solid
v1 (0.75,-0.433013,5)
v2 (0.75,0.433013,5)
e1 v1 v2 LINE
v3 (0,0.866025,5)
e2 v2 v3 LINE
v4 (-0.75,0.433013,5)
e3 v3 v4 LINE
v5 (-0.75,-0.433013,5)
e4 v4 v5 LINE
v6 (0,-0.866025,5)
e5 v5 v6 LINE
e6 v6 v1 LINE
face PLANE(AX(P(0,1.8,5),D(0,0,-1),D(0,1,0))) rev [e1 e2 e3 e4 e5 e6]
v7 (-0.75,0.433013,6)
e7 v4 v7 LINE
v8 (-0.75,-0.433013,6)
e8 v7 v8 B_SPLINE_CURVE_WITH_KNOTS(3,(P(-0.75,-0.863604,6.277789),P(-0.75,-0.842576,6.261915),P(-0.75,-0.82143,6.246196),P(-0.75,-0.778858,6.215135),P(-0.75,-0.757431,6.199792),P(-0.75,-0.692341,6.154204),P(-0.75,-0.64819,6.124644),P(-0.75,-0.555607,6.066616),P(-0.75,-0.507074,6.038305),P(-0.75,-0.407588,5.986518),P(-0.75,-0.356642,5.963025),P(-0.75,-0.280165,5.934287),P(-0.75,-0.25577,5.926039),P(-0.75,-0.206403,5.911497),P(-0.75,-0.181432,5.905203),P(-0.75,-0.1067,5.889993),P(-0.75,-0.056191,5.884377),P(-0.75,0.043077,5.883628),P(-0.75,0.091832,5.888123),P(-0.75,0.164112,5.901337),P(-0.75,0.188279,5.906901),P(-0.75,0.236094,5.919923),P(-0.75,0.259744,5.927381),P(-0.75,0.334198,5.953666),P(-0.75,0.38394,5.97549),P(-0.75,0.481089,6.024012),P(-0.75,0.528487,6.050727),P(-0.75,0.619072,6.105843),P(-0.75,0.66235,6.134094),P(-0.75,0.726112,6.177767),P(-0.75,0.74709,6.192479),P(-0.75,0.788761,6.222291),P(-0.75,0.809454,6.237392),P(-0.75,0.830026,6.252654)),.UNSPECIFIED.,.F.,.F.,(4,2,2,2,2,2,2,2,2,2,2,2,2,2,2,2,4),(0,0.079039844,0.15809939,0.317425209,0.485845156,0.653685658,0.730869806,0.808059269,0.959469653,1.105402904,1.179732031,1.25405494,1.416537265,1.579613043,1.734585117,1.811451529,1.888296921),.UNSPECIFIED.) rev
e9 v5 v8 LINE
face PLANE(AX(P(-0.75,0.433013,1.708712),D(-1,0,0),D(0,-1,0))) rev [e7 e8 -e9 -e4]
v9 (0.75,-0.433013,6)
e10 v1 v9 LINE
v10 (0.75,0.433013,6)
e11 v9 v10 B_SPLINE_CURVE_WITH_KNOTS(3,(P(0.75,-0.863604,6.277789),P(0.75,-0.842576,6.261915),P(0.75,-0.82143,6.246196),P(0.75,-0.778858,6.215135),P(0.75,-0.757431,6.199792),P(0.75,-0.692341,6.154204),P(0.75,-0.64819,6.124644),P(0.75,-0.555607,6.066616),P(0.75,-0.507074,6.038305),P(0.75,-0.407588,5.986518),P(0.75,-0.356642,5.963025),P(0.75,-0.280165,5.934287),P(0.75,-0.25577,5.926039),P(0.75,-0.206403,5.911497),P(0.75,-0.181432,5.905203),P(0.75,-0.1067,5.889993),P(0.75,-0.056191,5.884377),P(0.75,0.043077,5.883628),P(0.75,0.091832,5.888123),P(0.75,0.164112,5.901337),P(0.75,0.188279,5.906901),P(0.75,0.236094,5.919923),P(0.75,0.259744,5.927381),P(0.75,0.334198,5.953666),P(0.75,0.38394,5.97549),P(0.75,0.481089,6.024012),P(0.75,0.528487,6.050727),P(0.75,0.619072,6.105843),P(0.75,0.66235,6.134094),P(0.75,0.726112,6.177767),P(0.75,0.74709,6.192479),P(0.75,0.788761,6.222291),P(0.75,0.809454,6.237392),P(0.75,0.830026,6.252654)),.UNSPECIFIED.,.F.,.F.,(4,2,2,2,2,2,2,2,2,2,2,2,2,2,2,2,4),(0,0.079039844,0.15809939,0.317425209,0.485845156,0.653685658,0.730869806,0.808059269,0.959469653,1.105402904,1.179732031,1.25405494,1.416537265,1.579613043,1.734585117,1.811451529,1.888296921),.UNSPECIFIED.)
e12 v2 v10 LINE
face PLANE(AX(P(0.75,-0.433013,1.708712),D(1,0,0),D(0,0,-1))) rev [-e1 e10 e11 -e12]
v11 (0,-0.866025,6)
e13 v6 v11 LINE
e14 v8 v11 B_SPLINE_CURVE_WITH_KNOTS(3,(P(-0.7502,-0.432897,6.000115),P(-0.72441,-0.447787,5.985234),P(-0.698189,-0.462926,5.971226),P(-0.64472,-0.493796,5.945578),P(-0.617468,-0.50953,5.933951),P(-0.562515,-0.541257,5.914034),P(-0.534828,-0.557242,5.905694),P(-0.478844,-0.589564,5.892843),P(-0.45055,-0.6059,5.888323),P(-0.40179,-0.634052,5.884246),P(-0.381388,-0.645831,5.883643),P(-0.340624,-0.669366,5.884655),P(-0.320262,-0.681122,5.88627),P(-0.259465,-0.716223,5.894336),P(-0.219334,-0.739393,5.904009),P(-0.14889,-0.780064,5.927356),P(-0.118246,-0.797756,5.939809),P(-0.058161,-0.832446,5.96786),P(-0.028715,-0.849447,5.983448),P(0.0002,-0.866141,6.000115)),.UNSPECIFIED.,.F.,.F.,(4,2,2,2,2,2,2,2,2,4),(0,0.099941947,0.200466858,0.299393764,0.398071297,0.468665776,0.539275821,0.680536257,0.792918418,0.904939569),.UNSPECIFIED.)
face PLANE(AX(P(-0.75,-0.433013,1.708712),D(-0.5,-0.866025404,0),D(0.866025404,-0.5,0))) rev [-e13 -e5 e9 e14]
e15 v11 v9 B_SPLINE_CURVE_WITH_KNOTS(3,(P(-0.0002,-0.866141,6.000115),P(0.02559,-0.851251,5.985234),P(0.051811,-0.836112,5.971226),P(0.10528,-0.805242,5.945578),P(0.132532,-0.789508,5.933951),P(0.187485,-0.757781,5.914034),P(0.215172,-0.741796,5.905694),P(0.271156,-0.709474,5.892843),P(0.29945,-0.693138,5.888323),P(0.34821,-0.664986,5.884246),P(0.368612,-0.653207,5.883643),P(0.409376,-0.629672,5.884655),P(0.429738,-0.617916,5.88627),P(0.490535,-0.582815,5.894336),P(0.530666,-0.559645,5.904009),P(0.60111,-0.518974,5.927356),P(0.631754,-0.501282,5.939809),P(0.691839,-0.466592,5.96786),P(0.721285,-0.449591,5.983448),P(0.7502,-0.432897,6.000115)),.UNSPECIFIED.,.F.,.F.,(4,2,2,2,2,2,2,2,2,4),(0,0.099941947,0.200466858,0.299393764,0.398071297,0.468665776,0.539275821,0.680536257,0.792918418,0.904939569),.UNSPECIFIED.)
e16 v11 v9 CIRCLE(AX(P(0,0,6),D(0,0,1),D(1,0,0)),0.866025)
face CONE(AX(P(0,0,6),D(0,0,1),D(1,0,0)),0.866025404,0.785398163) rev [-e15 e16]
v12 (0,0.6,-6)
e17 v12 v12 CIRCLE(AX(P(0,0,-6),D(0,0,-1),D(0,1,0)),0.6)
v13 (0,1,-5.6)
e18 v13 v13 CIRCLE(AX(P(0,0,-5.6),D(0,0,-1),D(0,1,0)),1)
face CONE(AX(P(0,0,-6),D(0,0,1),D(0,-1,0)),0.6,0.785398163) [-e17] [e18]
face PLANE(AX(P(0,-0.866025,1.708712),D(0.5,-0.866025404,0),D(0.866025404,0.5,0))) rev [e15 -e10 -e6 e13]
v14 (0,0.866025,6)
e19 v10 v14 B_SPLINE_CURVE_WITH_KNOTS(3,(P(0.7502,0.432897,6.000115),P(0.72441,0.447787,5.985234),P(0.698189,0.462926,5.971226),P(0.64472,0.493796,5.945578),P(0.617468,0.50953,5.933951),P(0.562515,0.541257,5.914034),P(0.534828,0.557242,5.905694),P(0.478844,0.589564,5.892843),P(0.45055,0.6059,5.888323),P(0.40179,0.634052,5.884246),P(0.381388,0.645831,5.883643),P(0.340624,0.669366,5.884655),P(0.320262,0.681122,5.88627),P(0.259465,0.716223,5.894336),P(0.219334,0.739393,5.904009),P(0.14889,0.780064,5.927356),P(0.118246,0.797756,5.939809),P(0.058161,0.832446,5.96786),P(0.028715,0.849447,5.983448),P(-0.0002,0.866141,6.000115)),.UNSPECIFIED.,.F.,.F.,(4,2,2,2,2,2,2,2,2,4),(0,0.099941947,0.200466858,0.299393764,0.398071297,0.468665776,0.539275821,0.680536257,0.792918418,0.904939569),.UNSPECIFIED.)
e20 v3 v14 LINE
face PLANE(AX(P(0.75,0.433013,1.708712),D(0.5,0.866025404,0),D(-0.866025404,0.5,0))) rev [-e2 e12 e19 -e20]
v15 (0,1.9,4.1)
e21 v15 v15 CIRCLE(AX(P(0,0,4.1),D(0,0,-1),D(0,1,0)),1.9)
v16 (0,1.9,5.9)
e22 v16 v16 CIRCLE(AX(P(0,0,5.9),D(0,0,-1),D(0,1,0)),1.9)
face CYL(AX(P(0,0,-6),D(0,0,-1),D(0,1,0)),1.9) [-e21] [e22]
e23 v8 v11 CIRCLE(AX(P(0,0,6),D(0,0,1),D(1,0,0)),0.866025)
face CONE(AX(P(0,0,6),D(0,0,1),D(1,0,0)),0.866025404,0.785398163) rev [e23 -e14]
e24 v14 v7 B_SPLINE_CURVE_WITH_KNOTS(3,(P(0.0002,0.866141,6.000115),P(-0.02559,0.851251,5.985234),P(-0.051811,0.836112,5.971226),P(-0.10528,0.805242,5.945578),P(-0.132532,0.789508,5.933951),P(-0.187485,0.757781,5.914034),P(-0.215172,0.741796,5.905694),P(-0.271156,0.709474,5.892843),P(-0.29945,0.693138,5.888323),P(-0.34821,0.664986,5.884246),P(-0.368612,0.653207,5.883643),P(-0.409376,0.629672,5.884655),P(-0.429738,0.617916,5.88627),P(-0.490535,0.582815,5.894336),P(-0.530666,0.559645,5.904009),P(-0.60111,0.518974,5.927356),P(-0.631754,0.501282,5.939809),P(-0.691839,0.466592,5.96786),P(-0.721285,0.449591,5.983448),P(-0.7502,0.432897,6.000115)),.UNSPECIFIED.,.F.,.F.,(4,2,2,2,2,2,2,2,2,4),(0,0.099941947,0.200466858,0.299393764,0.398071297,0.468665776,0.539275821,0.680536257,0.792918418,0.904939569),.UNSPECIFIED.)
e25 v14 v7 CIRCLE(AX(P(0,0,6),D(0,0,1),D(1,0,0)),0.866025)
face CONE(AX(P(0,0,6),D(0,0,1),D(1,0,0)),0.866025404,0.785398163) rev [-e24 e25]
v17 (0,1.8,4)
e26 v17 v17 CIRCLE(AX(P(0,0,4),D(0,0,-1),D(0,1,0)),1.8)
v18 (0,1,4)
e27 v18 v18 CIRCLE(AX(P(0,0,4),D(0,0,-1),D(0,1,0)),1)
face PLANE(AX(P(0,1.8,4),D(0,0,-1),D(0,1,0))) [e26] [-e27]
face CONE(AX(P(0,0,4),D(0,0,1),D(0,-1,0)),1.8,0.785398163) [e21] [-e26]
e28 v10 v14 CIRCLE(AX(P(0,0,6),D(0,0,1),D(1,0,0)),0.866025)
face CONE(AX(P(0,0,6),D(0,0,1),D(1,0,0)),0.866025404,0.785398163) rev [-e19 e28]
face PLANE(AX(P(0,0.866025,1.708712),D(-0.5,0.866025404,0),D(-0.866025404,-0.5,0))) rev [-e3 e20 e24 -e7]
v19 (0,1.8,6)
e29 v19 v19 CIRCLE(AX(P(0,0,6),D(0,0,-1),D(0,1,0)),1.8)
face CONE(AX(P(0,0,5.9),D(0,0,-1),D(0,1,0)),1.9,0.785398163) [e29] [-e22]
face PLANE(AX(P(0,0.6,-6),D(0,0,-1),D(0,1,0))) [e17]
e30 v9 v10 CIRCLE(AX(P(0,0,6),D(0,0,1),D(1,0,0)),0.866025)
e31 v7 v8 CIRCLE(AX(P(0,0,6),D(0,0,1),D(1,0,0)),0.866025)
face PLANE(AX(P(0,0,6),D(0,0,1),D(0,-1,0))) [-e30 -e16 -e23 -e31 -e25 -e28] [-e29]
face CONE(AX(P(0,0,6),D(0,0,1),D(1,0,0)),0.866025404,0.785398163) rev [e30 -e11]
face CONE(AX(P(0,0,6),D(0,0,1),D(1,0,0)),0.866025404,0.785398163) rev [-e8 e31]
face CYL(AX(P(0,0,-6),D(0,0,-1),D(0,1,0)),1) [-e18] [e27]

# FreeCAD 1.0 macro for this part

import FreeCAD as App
import Part
import Sketcher
Q = App.Units.Quantity


def faces_at(feature, points):
    """Names of the faces that lie closest to the given points."""
    faces = feature.Shape.Faces
    near = lambda p: min(range(len(faces)), key=lambda i: faces[i].distToShape(Part.Vertex(*p))[0])
    return sorted({f"Face{near(p) + 1}" for p in points})

doc = App.newDocument("Part")
body = doc.addObject("PartDesign::Body", "Body")

sketch1 = body.newObject("Sketcher::SketchObject", "Sketch")
sketch1.AttachmentSupport = (doc.getObject("YZ_Plane"), [""])
sketch1.MapMode = "FlatFace"
sketch1.addGeometry([
    Part.LineSegment(App.Vector(1.8, 6, 0), App.Vector(0, 6, 0)),
    Part.LineSegment(App.Vector(0, 6, 0), App.Vector(0, -6, 0)),
    Part.LineSegment(App.Vector(0, -6, 0), App.Vector(0.6, -6, 0)),
    Part.LineSegment(App.Vector(0.6, -6, 0), App.Vector(1, -5.6, 0)),
    Part.LineSegment(App.Vector(1, -5.6, 0), App.Vector(1, 4, 0)),
    Part.LineSegment(App.Vector(1, 4, 0), App.Vector(1.8, 4, 0)),
    Part.LineSegment(App.Vector(1.8, 4, 0), App.Vector(1.9, 4.1, 0)),
    Part.LineSegment(App.Vector(1.9, 4.1, 0), App.Vector(1.9, 5.9, 0)),
    Part.LineSegment(App.Vector(1.9, 5.9, 0), App.Vector(1.8, 6, 0)),
], False)
sketch1.addConstraint([
    Sketcher.Constraint("Coincident", 0, 2, 1, 1),
    Sketcher.Constraint("Coincident", 1, 2, 2, 1),
    Sketcher.Constraint("Coincident", 2, 2, 3, 1),
    Sketcher.Constraint("Coincident", 3, 2, 4, 1),
    Sketcher.Constraint("Coincident", 4, 2, 5, 1),
    Sketcher.Constraint("Coincident", 5, 2, 6, 1),
    Sketcher.Constraint("Coincident", 6, 2, 7, 1),
    Sketcher.Constraint("Coincident", 7, 2, 8, 1),
    Sketcher.Constraint("Coincident", 8, 2, 0, 1),
    Sketcher.Constraint("Horizontal", 0),
    Sketcher.Constraint("Vertical", 1),
    Sketcher.Constraint("Horizontal", 2),
    Sketcher.Constraint("Vertical", 4),
    Sketcher.Constraint("Horizontal", 5),
    Sketcher.Constraint("Vertical", 7),
    Sketcher.Constraint("Symmetric", 0, 2, 1, 2, -1, 1),
    Sketcher.Constraint("Parallel", 3, 6),
    Sketcher.Constraint("Perpendicular", 6, 8),
    Sketcher.Constraint("Vertical", 5, 2, 8, 2),
    Sketcher.Constraint("Equal", 0, 7),
    Sketcher.Constraint("Equal", 6, 8),
    Sketcher.Constraint("DistanceY", 1, 2, 1, 1, 12.0),
    Sketcher.Constraint("DistanceX", 0, 2, 0, 1, 1.8),
    Sketcher.Constraint("DistanceX", 2, 1, 2, 2, 0.6),
    Sketcher.Constraint("DistanceX", 5, 1, 5, 2, 0.8),
    Sketcher.Constraint("DistanceY", 4, 1, 4, 2, 9.6),
])
revolution = body.newObject("PartDesign::Revolution", "Revolution")
revolution.Profile = sketch1
revolution.ReferenceAxis = (sketch1, ["V_Axis"])
revolution.Angle = 360

sketch2 = body.newObject("Sketcher::SketchObject", "Sketch001")
sketch2.AttachmentSupport = (doc.getObject("XY_Plane"), [""])
sketch2.MapMode = "FlatFace"
sketch2.AttachmentOffset = App.Placement(App.Vector(0, 0, 6), App.Rotation())
sketch2.addGeometry([
    Part.LineSegment(App.Vector(0.8, -0.4, 0), App.Vector(0.8, 0.4, 0)),
    Part.LineSegment(App.Vector(0.8, 0.4, 0), App.Vector(0, 0.9, 0)),
    Part.LineSegment(App.Vector(0, 0.9, 0), App.Vector(-0.8, 0.4, 0)),
    Part.LineSegment(App.Vector(-0.8, 0.4, 0), App.Vector(-0.8, -0.4, 0)),
    Part.LineSegment(App.Vector(-0.8, -0.4, 0), App.Vector(0, -0.9, 0)),
    Part.LineSegment(App.Vector(0, -0.9, 0), App.Vector(0.8, -0.4, 0)),
], False)
sketch2.addConstraint([
    Sketcher.Constraint("Coincident", 0, 2, 1, 1),
    Sketcher.Constraint("Coincident", 1, 2, 2, 1),
    Sketcher.Constraint("Coincident", 2, 2, 3, 1),
    Sketcher.Constraint("Coincident", 3, 2, 4, 1),
    Sketcher.Constraint("Coincident", 4, 2, 5, 1),
    Sketcher.Constraint("Coincident", 5, 2, 0, 1),
    Sketcher.Constraint("Vertical", 0),
    Sketcher.Constraint("Vertical", 3),
    Sketcher.Constraint("Symmetric", 0, 2, 3, 2, -1, 1),
    Sketcher.Constraint("Symmetric", 1, 2, 4, 2, -1, 1),
    Sketcher.Constraint("PointOnObject", 1, 2, -2),
    Sketcher.Constraint("Parallel", 2, 5),
    Sketcher.Constraint("Horizontal", 0, 2, 2, 2),
    Sketcher.Constraint("Angle", 1, Q("150 deg")),
    Sketcher.Constraint("DistanceX", 2, 2, 0, 2, 1.5),
    Sketcher.Constraint("DistanceY", 0, 1, 0, 2, 0.866025),
])
pocket1 = body.newObject("PartDesign::Pocket", "Pocket")
pocket1.Profile = sketch2
pocket1.Length = 1
body2 = doc.addObject("PartDesign::Body", "Body001")

sketch3 = body2.newObject("Sketcher::SketchObject", "Sketch002")
sketch3.AttachmentSupport = (doc.getObject("XY_Plane001"), [""])
sketch3.MapMode = "FlatFace"
sketch3.AttachmentOffset = App.Placement(App.Vector(0, 0, 6), App.Rotation())
sketch3.addGeometry(Part.Circle(App.Vector(0, 0, 0), App.Vector(0, 0, 1), 0.9), False)
sketch3.addConstraint([
    Sketcher.Constraint("Coincident", 0, 3, -1, 1),
    Sketcher.Constraint("Diameter", 0, 1.732051),
])
pad1 = body2.newObject("PartDesign::Pad", "Pad")
pad1.Profile = sketch3
pad1.Length = 1
pad1.Reversed = True
doc.recompute()

datumplane = body2.newObject("PartDesign::Plane", "DatumPlane")
datumplane.AttachmentSupport = (doc.getObject("XY_Plane001"), [""])
datumplane.MapMode = "FlatFace"
datumplane.AttachmentOffset = App.Placement(App.Vector(0, 0, 6), App.Rotation())
draft = body2.newObject("PartDesign::Draft", "Draft")
draft.Base = (pad1, faces_at(pad1, [(-0.866, 0, 5.5)]))
draft.NeutralPlane = (datumplane, [""])
draft.Angle = 45
draft.Reversed = True
doc.recompute()

boolean = body.newObject("PartDesign::Boolean", "Boolean")
boolean.Type = "Cut"
boolean.addObjects([body2])

doc.recompute()
